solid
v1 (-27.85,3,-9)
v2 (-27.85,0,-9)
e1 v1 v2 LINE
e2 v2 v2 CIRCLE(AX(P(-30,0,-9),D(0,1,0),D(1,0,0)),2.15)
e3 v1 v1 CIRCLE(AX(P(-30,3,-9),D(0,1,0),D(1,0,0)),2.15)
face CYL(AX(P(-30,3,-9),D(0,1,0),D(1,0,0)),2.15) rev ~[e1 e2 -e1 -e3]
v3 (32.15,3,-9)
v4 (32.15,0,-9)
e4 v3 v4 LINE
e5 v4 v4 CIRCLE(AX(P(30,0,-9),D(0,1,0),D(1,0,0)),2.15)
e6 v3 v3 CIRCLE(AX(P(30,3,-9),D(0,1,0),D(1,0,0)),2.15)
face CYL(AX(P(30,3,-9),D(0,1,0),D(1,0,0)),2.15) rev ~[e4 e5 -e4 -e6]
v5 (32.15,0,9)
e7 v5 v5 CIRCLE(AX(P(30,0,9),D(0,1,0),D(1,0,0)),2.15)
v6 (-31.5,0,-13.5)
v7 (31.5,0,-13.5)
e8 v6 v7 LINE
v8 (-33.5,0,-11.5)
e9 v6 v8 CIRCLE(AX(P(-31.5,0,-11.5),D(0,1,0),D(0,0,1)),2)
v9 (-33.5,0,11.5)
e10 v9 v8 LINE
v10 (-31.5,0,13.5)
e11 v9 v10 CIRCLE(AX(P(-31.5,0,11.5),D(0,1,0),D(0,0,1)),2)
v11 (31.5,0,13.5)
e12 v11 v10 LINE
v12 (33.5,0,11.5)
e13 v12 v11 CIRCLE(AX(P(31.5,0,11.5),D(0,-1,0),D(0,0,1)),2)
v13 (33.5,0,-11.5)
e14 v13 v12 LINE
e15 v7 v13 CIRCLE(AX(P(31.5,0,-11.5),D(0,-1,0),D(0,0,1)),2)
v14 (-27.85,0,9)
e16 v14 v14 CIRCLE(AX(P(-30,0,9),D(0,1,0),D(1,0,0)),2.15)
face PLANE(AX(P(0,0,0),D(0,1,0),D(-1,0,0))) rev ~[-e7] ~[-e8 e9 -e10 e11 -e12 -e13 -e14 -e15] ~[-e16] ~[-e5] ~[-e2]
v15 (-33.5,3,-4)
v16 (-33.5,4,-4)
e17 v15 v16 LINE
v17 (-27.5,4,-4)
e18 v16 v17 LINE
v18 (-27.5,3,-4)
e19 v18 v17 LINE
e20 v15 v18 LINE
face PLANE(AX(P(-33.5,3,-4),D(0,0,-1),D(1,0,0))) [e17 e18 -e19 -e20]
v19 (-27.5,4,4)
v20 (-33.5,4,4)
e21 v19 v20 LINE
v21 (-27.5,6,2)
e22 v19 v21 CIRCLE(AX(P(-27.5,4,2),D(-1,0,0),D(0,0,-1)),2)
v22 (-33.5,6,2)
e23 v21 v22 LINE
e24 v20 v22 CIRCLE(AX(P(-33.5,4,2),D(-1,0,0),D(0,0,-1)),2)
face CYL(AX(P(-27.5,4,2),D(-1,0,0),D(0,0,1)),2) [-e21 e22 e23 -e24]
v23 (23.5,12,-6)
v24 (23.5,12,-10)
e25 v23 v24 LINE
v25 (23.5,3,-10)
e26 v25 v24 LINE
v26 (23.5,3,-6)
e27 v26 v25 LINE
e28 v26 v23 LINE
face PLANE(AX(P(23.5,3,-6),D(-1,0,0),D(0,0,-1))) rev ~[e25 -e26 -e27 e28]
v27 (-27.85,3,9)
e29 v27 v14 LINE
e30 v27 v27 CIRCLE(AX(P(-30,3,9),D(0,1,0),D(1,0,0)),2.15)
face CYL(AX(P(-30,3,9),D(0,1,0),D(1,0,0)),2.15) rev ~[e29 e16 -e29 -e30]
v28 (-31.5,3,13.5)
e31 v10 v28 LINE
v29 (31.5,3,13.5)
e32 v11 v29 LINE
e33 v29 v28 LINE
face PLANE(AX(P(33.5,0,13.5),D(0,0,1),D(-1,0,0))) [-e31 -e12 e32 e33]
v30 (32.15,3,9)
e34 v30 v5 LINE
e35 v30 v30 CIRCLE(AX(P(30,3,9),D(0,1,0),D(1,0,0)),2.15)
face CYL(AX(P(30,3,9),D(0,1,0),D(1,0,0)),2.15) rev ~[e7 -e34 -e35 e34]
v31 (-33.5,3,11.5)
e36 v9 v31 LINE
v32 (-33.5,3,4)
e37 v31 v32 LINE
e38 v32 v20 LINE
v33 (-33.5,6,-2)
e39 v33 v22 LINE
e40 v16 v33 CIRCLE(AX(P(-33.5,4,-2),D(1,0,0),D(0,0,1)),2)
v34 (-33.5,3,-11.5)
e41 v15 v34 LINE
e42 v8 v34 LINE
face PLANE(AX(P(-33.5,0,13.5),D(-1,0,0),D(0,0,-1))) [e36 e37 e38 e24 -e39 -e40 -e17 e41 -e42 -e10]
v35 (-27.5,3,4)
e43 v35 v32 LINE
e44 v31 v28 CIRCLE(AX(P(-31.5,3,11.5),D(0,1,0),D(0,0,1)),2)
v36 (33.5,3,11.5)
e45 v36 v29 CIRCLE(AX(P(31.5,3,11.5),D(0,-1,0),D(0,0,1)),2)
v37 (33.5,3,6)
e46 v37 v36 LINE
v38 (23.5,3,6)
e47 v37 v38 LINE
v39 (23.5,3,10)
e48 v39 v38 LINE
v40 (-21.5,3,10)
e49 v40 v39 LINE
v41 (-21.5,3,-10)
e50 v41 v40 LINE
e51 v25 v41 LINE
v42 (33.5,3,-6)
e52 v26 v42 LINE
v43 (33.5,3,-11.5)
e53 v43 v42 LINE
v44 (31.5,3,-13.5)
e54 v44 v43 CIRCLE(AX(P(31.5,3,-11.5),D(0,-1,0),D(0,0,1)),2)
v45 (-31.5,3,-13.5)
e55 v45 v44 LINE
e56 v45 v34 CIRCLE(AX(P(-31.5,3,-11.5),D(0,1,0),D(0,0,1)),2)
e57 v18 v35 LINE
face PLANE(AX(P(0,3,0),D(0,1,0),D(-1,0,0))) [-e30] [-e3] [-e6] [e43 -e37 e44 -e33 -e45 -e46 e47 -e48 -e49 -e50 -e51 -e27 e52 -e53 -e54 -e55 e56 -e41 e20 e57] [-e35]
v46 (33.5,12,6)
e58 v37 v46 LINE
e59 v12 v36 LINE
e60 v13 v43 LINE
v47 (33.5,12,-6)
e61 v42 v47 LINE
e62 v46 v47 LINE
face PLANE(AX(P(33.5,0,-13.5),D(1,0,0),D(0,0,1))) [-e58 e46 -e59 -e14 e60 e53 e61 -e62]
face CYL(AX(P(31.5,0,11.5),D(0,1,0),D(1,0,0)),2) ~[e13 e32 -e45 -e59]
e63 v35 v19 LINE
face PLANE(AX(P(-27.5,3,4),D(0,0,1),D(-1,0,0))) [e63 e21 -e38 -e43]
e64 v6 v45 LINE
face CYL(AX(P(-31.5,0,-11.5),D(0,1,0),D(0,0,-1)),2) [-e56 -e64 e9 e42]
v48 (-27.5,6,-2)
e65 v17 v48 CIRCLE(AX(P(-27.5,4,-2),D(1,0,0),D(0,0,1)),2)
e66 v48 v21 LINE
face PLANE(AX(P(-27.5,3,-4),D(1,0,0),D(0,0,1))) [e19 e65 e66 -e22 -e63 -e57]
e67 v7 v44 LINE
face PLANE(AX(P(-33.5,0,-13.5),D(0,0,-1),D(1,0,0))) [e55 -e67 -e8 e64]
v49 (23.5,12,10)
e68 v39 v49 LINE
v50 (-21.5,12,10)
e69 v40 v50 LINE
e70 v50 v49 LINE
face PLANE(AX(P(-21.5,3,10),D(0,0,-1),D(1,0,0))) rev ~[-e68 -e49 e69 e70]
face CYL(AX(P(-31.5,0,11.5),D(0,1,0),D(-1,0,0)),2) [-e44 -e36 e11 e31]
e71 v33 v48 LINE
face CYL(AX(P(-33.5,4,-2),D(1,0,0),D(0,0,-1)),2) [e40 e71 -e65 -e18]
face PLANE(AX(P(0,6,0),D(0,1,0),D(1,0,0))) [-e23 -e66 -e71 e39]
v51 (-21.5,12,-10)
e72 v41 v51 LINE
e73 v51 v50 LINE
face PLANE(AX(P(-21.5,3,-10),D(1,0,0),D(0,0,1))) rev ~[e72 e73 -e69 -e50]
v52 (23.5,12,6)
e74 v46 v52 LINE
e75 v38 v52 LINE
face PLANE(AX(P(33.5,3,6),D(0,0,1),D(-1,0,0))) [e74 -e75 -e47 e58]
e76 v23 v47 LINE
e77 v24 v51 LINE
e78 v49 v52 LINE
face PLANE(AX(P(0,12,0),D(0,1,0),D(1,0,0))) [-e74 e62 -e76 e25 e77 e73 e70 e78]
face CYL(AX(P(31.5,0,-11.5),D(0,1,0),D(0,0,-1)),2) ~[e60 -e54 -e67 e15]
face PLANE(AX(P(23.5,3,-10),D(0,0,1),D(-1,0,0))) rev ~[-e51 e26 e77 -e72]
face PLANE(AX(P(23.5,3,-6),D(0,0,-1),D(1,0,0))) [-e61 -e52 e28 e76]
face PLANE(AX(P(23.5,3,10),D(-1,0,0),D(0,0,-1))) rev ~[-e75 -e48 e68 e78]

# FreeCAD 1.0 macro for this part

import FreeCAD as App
import Part
import Sketcher
from FreeCAD import Vector


def edges_at(feature, points):
    """Names of the edges that pass closest to the given points."""
    edges = feature.Shape.Edges
    near = lambda p: min(range(len(edges)), key=lambda i: edges[i].distToShape(Part.Vertex(*p))[0])
    return sorted({f"Edge{near(p) + 1}" for p in points})

doc = App.newDocument("Part")
body = doc.addObject("PartDesign::Body", "Body")

sketch1 = body.newObject("Sketcher::SketchObject", "Sketch")
sketch1.AttachmentSupport = (doc.getObject("XZ_Plane"), [""])
sketch1.MapMode = "FlatFace"
sketch1.addGeometry([
    Part.LineSegment(Vector(33.5, -13.5, 0), Vector(-33.5, -13.5, 0)),
    Part.LineSegment(Vector(-33.5, -13.5, 0), Vector(-33.5, 13.5, 0)),
    Part.LineSegment(Vector(-33.5, 13.5, 0), Vector(33.5, 13.5, 0)),
    Part.LineSegment(Vector(33.5, 13.5, 0), Vector(33.5, -13.5, 0)),
], False)
sketch1.addConstraint([
    Sketcher.Constraint("Coincident", 0, 2, 1, 1),
    Sketcher.Constraint("Coincident", 1, 2, 2, 1),
    Sketcher.Constraint("Coincident", 2, 2, 3, 1),
    Sketcher.Constraint("Coincident", 3, 2, 0, 1),
    Sketcher.Constraint("Horizontal", 0),
    Sketcher.Constraint("Vertical", 1),
    Sketcher.Constraint("Horizontal", 2),
    Sketcher.Constraint("Vertical", 3),
    Sketcher.Constraint("Symmetric", 0, 2, 2, 2, -1, 1),
    Sketcher.Constraint("DistanceX", 0, 2, 0, 1, 67.0),
    Sketcher.Constraint("DistanceY", 1, 1, 1, 2, 27.0),
])
pad1 = body.newObject("PartDesign::Pad", "Pad")
pad1.Profile = sketch1
pad1.Length = 3
pad1.Reversed = True

sketch2 = body.newObject("Sketcher::SketchObject", "Sketch001")
sketch2.AttachmentSupport = (doc.getObject("XZ_Plane"), [""])
sketch2.MapMode = "FlatFace"
sketch2.AttachmentOffset = App.Placement(Vector(0, 0, -3), App.Rotation())
sketch2.addGeometry([
    Part.Circle(Vector(30, -9, 0), Vector(0, 0, 1), 2.15),
    Part.Circle(Vector(-30, -9, 0), Vector(0, 0, 1), 2.15),
    Part.Circle(Vector(30, 9, 0), Vector(0, 0, 1), 2.15),
    Part.Circle(Vector(-30, 9, 0), Vector(0, 0, 1), 2.15),
], False)
sketch2.addConstraint([
    Sketcher.Constraint("Equal", 0, 1),
    Sketcher.Constraint("Equal", 1, 2),
    Sketcher.Constraint("Equal", 2, 3),
    Sketcher.Constraint("Symmetric", 1, 3, 2, 3, -1, 1),
    Sketcher.Constraint("Symmetric", 0, 3, 3, 3, -1, 1),
    Sketcher.Constraint("Symmetric", 0, 3, 1, 3, -2),
    Sketcher.Constraint("Diameter", 0, 4.3),
    Sketcher.Constraint("DistanceX", -1, 1, 0, 3, 30.0),
    Sketcher.Constraint("DistanceY", 0, 3, -1, 1, 9.0),
])
pocket1 = body.newObject("PartDesign::Pocket", "Pocket")
pocket1.Profile = sketch2
pocket1.Type = "ThroughAll"
pocket1.Reversed = True
doc.recompute()

fillet = body.newObject("PartDesign::Fillet", "Fillet")
fillet.Base = (pocket1, edges_at(pocket1, [
    (-33.5, 1.5, 13.5),
    (-33.5, 1.5, -13.5),
    (33.5, 1.5, -13.5),
    (33.5, 1.5, 13.5),
]))
fillet.Radius = 2

sketch3 = body.newObject("Sketcher::SketchObject", "Sketch002")
sketch3.AttachmentSupport = (doc.getObject("XZ_Plane"), [""])
sketch3.MapMode = "FlatFace"
sketch3.AttachmentOffset = App.Placement(Vector(0, 0, -3), App.Rotation())
sketch3.addGeometry([
    Part.LineSegment(Vector(23.5, 6, 0), Vector(33.5, 6, 0)),
    Part.LineSegment(Vector(33.5, 6, 0), Vector(33.5, -6, 0)),
    Part.LineSegment(Vector(33.5, -6, 0), Vector(23.5, -6, 0)),
    Part.LineSegment(Vector(23.5, -6, 0), Vector(23.5, -10, 0)),
    Part.LineSegment(Vector(23.5, -10, 0), Vector(-21.5, -10, 0)),
    Part.LineSegment(Vector(-21.5, -10, 0), Vector(-21.5, 10, 0)),
    Part.LineSegment(Vector(-21.5, 10, 0), Vector(23.5, 10, 0)),
    Part.LineSegment(Vector(23.5, 10, 0), Vector(23.5, 6, 0)),
], False)
sketch3.addConstraint([
    Sketcher.Constraint("Coincident", 0, 2, 1, 1),
    Sketcher.Constraint("Coincident", 1, 2, 2, 1),
    Sketcher.Constraint("Coincident", 2, 2, 3, 1),
    Sketcher.Constraint("Coincident", 3, 2, 4, 1),
    Sketcher.Constraint("Coincident", 4, 2, 5, 1),
    Sketcher.Constraint("Coincident", 5, 2, 6, 1),
    Sketcher.Constraint("Coincident", 6, 2, 7, 1),
    Sketcher.Constraint("Coincident", 7, 2, 0, 1),
    Sketcher.Constraint("Horizontal", 0),
    Sketcher.Constraint("Vertical", 1),
    Sketcher.Constraint("Horizontal", 2),
    Sketcher.Constraint("Vertical", 3),
    Sketcher.Constraint("Horizontal", 4),
    Sketcher.Constraint("Vertical", 5),
    Sketcher.Constraint("Horizontal", 6),
    Sketcher.Constraint("Vertical", 7),
    Sketcher.Constraint("Symmetric", 3, 2, 6, 2, -1),
    Sketcher.Constraint("Equal", 3, 7),
    Sketcher.Constraint("DistanceX", 0, 1, 0, 2, 10.0),
    Sketcher.Constraint("DistanceX", 4, 2, 4, 1, 45.0),
    Sketcher.Constraint("DistanceY", 1, 2, 1, 1, 12.0),
    Sketcher.Constraint("DistanceY", 5, 1, 5, 2, 20.0),
    Sketcher.Constraint("DistanceX", -1, 1, 0, 2, 33.5),
])
pad2 = body.newObject("PartDesign::Pad", "Pad001")
pad2.Profile = sketch3
pad2.Length = 9
pad2.Reversed = True

sketch4 = body.newObject("Sketcher::SketchObject", "Sketch003")
sketch4.AttachmentSupport = (doc.getObject("XZ_Plane"), [""])
sketch4.MapMode = "FlatFace"
sketch4.AttachmentOffset = App.Placement(Vector(0, 0, -3), App.Rotation())
sketch4.addGeometry([
    Part.LineSegment(Vector(-27.5, -4, 0), Vector(-33.5, -4, 0)),
    Part.LineSegment(Vector(-33.5, -4, 0), Vector(-33.5, 4, 0)),
    Part.LineSegment(Vector(-33.5, 4, 0), Vector(-27.5, 4, 0)),
    Part.LineSegment(Vector(-27.5, 4, 0), Vector(-27.5, -4, 0)),
], False)
sketch4.addConstraint([
    Sketcher.Constraint("Coincident", 0, 2, 1, 1),
    Sketcher.Constraint("Coincident", 1, 2, 2, 1),
    Sketcher.Constraint("Coincident", 2, 2, 3, 1),
    Sketcher.Constraint("Coincident", 3, 2, 0, 1),
    Sketcher.Constraint("Horizontal", 0),
    Sketcher.Constraint("Vertical", 1),
    Sketcher.Constraint("Horizontal", 2),
    Sketcher.Constraint("Vertical", 3),
    Sketcher.Constraint("DistanceX", 0, 2, 0, 1, 6.0),
    Sketcher.Constraint("DistanceY", 1, 1, 1, 2, 8.0),
    Sketcher.Constraint("DistanceY", 0, 2, -1, 1, 4.0),
    Sketcher.Constraint("DistanceX", 0, 2, -1, 1, 33.5),
])
pad3 = body.newObject("PartDesign::Pad", "Pad002")
pad3.Profile = sketch4
pad3.Length = 3
pad3.Reversed = True
doc.recompute()

fillet2 = body.newObject("PartDesign::Fillet", "Fillet001")
fillet2.Base = (pad3, edges_at(pad3, [(-30.5, 6, 4), (-30.5, 6, -4)]))
fillet2.Radius = 2

doc.recompute()
